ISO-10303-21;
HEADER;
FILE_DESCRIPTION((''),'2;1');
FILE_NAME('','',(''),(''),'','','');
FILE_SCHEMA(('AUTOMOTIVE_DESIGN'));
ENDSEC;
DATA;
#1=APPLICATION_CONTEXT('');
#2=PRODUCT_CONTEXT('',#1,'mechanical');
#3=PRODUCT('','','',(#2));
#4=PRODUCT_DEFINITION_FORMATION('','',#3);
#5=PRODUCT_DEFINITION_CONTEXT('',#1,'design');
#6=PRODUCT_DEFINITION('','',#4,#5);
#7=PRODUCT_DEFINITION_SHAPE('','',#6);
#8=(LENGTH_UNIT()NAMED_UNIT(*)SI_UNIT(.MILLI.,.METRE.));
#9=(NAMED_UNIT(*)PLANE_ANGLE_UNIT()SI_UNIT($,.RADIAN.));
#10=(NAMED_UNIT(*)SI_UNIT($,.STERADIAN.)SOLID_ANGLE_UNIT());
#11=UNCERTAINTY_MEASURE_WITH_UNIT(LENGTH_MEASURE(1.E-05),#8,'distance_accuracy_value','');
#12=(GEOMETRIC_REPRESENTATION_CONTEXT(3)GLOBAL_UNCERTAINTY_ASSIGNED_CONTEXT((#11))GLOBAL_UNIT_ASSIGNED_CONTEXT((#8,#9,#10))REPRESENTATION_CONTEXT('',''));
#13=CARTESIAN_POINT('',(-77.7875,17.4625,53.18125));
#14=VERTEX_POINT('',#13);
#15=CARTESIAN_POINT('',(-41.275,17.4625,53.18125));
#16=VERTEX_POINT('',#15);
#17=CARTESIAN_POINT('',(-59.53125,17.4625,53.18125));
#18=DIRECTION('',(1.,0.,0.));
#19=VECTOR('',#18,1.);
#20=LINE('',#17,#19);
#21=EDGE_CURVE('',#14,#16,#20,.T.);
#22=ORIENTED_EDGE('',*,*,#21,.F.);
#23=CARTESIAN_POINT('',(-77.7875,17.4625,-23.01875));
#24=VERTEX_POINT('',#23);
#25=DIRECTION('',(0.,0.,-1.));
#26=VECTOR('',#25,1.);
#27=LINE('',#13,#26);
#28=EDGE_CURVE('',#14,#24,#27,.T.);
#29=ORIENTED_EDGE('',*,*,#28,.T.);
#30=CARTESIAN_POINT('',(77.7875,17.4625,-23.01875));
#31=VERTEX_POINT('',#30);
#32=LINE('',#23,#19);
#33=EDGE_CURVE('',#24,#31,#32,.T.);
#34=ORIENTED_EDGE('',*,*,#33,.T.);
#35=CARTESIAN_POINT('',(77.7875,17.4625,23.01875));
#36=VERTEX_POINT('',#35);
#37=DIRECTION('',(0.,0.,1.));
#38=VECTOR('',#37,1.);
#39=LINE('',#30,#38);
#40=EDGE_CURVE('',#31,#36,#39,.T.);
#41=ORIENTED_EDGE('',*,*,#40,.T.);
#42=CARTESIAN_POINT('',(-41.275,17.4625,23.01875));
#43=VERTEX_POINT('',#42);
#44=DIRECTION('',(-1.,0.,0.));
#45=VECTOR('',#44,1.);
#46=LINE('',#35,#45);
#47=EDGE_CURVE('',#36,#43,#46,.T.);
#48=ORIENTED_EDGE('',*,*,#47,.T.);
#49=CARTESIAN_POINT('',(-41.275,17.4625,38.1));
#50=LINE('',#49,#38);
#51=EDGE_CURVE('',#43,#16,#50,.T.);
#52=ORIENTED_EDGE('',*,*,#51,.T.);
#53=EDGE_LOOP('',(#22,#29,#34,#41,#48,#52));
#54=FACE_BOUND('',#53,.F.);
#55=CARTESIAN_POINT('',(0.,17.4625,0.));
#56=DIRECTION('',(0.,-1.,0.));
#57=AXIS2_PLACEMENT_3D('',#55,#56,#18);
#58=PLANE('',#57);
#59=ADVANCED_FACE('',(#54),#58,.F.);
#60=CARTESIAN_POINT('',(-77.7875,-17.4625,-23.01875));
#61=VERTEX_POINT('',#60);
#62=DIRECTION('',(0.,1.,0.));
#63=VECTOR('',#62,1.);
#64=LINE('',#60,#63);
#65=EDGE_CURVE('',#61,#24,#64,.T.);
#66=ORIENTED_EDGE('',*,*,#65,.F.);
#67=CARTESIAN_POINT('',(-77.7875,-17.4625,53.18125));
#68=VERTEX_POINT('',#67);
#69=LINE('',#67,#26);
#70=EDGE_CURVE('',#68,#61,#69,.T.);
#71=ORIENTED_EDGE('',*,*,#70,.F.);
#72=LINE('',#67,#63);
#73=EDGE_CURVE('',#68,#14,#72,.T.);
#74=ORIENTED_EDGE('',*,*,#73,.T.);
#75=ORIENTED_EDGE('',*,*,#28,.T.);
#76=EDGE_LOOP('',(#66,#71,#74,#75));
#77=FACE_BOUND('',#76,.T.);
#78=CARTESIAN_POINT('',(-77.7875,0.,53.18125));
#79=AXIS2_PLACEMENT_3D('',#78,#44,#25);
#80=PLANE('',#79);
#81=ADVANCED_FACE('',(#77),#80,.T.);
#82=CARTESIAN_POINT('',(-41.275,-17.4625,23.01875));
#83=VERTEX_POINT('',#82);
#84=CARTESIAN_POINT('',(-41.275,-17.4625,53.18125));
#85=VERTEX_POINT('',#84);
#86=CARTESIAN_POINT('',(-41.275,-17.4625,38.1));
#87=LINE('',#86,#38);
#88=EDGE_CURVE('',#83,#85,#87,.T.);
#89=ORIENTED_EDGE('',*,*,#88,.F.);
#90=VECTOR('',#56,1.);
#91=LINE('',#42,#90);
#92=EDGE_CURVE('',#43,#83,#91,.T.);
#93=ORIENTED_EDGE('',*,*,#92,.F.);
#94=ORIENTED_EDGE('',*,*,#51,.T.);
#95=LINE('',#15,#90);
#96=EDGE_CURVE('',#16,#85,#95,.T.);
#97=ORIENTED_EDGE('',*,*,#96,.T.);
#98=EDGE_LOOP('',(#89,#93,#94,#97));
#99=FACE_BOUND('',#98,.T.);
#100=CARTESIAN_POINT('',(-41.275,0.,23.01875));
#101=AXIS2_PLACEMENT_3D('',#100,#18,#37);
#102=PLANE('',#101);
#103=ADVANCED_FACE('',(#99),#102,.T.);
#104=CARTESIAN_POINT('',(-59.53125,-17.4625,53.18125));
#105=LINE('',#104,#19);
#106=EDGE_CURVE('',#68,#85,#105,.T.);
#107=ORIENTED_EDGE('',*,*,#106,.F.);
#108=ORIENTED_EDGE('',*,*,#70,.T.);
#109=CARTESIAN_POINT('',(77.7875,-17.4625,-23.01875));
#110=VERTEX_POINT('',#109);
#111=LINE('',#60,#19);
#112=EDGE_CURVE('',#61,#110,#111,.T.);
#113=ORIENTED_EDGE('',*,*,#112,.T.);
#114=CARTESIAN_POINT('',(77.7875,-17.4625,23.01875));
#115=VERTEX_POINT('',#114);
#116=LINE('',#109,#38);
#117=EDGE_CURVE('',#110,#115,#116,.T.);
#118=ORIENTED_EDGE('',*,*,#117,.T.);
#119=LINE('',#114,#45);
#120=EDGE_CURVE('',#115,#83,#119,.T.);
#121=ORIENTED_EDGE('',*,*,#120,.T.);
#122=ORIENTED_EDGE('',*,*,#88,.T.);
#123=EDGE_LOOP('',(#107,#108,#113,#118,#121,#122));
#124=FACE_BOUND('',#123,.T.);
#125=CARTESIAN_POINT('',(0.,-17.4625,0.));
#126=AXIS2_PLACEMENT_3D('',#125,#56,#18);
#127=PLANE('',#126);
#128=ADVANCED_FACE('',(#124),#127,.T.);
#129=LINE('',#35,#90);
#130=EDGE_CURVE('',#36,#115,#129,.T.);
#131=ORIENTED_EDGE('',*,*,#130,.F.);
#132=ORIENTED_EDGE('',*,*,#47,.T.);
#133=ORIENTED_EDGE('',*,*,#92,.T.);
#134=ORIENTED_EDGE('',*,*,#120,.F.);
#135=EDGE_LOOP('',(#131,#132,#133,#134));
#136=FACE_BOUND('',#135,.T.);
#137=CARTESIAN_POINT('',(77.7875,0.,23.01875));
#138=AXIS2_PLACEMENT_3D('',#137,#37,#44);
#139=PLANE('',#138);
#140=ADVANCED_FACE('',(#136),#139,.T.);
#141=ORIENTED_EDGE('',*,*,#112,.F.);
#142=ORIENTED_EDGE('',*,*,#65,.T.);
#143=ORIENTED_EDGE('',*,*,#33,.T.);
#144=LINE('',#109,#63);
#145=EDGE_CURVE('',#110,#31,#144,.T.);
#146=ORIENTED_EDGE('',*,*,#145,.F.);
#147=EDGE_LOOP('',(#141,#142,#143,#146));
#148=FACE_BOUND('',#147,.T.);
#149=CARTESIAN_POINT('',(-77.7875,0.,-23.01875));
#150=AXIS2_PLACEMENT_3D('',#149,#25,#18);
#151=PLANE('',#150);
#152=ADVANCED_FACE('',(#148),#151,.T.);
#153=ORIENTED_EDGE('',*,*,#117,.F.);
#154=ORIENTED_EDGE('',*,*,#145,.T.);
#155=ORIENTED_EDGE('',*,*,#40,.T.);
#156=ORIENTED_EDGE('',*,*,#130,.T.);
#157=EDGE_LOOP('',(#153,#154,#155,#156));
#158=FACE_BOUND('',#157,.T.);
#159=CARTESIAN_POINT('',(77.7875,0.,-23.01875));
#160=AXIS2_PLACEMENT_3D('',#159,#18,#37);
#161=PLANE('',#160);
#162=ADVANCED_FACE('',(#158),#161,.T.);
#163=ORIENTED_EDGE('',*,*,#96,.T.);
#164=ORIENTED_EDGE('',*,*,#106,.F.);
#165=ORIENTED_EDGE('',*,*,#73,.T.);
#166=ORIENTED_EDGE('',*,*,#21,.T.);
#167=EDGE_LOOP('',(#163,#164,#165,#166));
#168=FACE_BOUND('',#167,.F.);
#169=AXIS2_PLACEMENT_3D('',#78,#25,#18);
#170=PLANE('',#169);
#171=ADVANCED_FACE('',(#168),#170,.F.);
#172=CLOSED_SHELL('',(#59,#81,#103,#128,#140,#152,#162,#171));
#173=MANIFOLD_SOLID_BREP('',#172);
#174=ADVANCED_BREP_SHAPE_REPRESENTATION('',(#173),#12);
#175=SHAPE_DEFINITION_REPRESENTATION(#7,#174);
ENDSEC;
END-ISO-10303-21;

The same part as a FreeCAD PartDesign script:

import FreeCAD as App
import Part
import Sketcher
from FreeCAD import Vector
Q = App.Units.Quantity


def add_polygon(sketch, points):
    """Adds a closed chain of lines whose ends are joined by coincident constraints."""
    first, n = sketch.GeometryCount, len(points)
    for a, b in zip(points, points[1:] + points[:1]):
        sketch.addGeometry(Part.LineSegment(App.Vector(*a, 0), App.Vector(*b, 0)), False)
    for i in range(n):
        sketch.addConstraint(Sketcher.Constraint("Coincident", first + i, 2, first + (i + 1) % n, 1))

doc = App.newDocument("Part")
body = doc.addObject("PartDesign::Body", "Body")

# Sketch on XZ plane
sketch1 = body.newObject("Sketcher::SketchObject", "Sketch")
sketch1.AttachmentSupport = (doc.getObject("XZ_Plane"), [""])
sketch1.MapMode = "FlatFace"
add_polygon(sketch1, [(78, -23), (78, 23), (-41, 23), (-41, 53), (-78, 53), (-78, -23)])  # lines 0-5
sketch1.addConstraint([
    Sketcher.Constraint("Vertical", 0),
    Sketcher.Constraint("Horizontal", 1),
    Sketcher.Constraint("Vertical", 2),
    Sketcher.Constraint("Horizontal", 3),
    Sketcher.Constraint("Vertical", 4),
    Sketcher.Constraint("Horizontal", 5),
    Sketcher.Constraint("Symmetric", 0, 2, 4, 2, -1, 1),
    Sketcher.Constraint("DistanceY", 4, 2, 4, 1, Q("3 in")),
    Sketcher.Constraint("DistanceX", 1, 2, 1, 1, Q("4.6875 in")),
    Sketcher.Constraint("DistanceX", 3, 2, 3, 1, Q("1.4375 in")),
    Sketcher.Constraint("DistanceY", 0, 1, 0, 2, Q("1.8125 in")),
])
pad1 = body.newObject("PartDesign::Pad", "Pad")
pad1.Profile = sketch1
pad1.Length = Q("1.375 in")
pad1.Midplane = True

doc.recompute()
